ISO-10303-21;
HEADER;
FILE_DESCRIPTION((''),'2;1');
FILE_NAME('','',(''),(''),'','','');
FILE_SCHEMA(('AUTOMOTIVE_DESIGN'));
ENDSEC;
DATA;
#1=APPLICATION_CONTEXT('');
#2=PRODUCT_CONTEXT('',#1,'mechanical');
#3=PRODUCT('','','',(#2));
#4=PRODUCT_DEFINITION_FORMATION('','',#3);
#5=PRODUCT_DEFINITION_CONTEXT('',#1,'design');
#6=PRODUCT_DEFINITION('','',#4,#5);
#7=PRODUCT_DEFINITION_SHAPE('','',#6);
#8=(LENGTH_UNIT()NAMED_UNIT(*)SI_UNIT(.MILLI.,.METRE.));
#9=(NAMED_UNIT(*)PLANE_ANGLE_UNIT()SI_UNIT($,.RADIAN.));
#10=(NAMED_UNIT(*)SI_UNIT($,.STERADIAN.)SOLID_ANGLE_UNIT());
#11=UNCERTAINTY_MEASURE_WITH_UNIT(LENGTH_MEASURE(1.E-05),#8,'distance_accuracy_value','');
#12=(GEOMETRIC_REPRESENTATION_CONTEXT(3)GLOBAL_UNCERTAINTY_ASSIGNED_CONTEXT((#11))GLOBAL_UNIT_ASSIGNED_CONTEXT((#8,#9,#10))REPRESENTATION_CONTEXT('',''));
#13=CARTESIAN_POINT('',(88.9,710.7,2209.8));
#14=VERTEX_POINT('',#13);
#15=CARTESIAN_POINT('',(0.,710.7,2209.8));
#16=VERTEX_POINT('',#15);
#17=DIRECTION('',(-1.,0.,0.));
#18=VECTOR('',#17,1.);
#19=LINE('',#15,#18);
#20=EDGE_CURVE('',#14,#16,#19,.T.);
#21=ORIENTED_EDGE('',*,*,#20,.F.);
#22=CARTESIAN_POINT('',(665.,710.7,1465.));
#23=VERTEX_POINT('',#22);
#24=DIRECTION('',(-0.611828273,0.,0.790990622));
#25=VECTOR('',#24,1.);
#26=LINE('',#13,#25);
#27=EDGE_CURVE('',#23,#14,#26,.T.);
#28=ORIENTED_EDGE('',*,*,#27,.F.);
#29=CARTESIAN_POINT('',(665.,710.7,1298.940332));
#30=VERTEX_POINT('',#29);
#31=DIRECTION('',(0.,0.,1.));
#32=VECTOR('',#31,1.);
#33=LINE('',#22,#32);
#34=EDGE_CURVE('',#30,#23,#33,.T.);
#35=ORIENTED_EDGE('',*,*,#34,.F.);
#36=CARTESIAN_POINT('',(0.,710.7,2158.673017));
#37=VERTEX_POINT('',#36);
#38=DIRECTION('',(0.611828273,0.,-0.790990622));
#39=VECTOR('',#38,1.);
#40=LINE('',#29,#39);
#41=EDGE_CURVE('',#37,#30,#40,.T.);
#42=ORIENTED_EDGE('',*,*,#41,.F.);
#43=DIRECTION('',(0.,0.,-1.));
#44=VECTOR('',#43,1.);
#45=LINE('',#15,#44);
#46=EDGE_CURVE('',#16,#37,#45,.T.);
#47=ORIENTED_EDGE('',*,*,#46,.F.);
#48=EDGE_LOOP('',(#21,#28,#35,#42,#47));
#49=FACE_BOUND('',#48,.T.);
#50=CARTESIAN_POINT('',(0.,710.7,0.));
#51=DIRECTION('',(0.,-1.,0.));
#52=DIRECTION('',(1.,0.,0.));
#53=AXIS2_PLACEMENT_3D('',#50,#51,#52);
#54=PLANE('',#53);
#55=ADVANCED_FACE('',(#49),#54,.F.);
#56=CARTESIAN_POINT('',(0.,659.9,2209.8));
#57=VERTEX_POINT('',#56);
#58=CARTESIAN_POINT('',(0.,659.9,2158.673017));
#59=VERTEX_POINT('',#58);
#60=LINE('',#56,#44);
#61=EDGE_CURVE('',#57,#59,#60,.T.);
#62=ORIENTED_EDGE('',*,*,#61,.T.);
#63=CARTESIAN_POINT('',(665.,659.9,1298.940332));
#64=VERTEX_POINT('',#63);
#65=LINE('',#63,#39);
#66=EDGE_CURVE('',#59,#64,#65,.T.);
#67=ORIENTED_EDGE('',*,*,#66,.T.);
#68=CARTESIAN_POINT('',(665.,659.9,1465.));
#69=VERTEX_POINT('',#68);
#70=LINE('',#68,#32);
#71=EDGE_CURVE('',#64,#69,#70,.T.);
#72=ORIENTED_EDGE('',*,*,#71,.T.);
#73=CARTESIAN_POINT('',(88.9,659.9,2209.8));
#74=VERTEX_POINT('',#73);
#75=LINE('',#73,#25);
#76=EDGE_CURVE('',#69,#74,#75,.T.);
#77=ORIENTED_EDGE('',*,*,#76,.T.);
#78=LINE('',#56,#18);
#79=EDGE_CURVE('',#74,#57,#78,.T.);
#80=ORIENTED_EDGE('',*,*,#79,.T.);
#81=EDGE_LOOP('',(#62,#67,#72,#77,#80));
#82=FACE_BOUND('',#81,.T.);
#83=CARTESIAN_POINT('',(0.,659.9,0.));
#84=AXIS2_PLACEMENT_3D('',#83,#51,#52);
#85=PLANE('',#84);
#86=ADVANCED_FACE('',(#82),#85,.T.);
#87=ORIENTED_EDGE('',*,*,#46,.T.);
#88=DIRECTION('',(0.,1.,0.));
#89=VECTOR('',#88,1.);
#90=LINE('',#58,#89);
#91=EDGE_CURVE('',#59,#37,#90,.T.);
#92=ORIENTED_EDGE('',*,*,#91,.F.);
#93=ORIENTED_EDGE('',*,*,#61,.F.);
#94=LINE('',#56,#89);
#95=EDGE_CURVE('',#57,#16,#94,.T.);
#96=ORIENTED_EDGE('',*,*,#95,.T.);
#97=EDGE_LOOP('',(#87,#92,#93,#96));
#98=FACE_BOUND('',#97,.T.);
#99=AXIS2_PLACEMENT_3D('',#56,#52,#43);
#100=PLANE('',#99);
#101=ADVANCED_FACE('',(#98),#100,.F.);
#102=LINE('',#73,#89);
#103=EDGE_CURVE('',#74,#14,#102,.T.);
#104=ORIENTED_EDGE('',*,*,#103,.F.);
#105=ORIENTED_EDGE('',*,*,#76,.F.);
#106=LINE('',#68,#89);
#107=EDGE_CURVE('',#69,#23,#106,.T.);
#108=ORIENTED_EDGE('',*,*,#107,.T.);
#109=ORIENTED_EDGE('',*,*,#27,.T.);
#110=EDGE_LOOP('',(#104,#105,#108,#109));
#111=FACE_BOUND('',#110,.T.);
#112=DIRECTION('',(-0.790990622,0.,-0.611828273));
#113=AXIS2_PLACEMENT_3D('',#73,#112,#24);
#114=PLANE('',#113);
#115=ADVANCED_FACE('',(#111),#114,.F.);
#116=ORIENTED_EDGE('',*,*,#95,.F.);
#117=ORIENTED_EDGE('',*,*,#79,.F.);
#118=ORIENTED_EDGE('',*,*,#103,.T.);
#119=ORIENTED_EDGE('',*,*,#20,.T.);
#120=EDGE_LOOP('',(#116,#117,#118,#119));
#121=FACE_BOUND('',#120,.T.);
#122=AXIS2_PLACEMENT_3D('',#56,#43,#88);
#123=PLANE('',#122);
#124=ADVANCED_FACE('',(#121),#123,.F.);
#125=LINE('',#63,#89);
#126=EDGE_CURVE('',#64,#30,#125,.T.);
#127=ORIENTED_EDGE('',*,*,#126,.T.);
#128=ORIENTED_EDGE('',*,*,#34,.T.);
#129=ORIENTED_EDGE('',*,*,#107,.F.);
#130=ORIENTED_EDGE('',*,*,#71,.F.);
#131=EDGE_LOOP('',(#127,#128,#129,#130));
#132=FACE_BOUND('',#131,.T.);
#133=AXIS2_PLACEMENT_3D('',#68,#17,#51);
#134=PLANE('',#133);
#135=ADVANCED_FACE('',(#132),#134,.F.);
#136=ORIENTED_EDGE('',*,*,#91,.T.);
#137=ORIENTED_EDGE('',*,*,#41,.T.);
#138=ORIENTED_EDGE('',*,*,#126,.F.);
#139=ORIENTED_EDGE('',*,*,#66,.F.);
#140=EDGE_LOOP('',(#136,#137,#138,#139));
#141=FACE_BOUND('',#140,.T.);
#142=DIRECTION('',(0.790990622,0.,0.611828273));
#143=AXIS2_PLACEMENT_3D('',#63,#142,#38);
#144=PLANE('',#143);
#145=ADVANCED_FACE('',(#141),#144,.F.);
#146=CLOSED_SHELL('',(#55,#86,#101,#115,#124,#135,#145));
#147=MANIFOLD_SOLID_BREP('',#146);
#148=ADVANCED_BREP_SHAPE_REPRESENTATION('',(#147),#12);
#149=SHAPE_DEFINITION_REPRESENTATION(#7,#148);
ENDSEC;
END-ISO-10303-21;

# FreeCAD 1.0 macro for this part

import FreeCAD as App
import Part
import Sketcher
Q = App.Units.Quantity


def add_polygon(sketch, points):
    """Adds a closed chain of lines whose ends are joined by coincident constraints."""
    first, n = sketch.GeometryCount, len(points)
    for a, b in zip(points, points[1:] + points[:1]):
        sketch.addGeometry(Part.LineSegment(App.Vector(*a, 0), App.Vector(*b, 0)), False)
    for i in range(n):
        sketch.addConstraint(Sketcher.Constraint("Coincident", first + i, 2, first + (i + 1) % n, 1))

doc = App.newDocument("Part")
body = doc.addObject("PartDesign::Body", "Body")

sketch1 = body.newObject("Sketcher::SketchObject", "Sketch")
sketch1.AttachmentSupport = (doc.getObject("XZ_Plane"), [""])
sketch1.MapMode = "FlatFace"
sketch1.AttachmentOffset = App.Placement(App.Vector(0, 0, -710.7), App.Rotation())
add_polygon(sketch1, [(0, 2158.673017), (665, 1298.940332), (665, 1465), (88.9, 2209.8), (0, 2209.8)])
sketch1.addConstraint(Sketcher.Constraint("Vertical", 1))
sketch1.addConstraint(Sketcher.Constraint("Horizontal", 3))
sketch1.addConstraint(Sketcher.Constraint("Vertical", 4))
sketch1.addConstraint(Sketcher.Constraint("PointOnObject", 3, 2, -2))
sketch1.addConstraint(Sketcher.Constraint("Parallel", 0, 2))
sketch1.addConstraint(Sketcher.Constraint("DistanceX", 3, 2, 3, 1, Q("3.5 in")))
sketch1.addConstraint(Sketcher.Constraint("DistanceY", -1, 1, 2, 2, Q("87 in")))
sketch1.addConstraint(Sketcher.Constraint("DistanceY", 1, 1, 1, 2, Q("166.059668 mm")))
sketch1.addConstraint(Sketcher.Constraint("DistanceX", -1, 1, 0, 2, Q("665 mm")))
sketch1.addConstraint(Sketcher.Constraint("DistanceY", -1, 1, 1, 2, Q("1465 mm")))
pad1 = body.newObject("PartDesign::Pad", "Pad")
pad1.Profile = sketch1
pad1.Length = Q("2 in")

doc.recompute()
